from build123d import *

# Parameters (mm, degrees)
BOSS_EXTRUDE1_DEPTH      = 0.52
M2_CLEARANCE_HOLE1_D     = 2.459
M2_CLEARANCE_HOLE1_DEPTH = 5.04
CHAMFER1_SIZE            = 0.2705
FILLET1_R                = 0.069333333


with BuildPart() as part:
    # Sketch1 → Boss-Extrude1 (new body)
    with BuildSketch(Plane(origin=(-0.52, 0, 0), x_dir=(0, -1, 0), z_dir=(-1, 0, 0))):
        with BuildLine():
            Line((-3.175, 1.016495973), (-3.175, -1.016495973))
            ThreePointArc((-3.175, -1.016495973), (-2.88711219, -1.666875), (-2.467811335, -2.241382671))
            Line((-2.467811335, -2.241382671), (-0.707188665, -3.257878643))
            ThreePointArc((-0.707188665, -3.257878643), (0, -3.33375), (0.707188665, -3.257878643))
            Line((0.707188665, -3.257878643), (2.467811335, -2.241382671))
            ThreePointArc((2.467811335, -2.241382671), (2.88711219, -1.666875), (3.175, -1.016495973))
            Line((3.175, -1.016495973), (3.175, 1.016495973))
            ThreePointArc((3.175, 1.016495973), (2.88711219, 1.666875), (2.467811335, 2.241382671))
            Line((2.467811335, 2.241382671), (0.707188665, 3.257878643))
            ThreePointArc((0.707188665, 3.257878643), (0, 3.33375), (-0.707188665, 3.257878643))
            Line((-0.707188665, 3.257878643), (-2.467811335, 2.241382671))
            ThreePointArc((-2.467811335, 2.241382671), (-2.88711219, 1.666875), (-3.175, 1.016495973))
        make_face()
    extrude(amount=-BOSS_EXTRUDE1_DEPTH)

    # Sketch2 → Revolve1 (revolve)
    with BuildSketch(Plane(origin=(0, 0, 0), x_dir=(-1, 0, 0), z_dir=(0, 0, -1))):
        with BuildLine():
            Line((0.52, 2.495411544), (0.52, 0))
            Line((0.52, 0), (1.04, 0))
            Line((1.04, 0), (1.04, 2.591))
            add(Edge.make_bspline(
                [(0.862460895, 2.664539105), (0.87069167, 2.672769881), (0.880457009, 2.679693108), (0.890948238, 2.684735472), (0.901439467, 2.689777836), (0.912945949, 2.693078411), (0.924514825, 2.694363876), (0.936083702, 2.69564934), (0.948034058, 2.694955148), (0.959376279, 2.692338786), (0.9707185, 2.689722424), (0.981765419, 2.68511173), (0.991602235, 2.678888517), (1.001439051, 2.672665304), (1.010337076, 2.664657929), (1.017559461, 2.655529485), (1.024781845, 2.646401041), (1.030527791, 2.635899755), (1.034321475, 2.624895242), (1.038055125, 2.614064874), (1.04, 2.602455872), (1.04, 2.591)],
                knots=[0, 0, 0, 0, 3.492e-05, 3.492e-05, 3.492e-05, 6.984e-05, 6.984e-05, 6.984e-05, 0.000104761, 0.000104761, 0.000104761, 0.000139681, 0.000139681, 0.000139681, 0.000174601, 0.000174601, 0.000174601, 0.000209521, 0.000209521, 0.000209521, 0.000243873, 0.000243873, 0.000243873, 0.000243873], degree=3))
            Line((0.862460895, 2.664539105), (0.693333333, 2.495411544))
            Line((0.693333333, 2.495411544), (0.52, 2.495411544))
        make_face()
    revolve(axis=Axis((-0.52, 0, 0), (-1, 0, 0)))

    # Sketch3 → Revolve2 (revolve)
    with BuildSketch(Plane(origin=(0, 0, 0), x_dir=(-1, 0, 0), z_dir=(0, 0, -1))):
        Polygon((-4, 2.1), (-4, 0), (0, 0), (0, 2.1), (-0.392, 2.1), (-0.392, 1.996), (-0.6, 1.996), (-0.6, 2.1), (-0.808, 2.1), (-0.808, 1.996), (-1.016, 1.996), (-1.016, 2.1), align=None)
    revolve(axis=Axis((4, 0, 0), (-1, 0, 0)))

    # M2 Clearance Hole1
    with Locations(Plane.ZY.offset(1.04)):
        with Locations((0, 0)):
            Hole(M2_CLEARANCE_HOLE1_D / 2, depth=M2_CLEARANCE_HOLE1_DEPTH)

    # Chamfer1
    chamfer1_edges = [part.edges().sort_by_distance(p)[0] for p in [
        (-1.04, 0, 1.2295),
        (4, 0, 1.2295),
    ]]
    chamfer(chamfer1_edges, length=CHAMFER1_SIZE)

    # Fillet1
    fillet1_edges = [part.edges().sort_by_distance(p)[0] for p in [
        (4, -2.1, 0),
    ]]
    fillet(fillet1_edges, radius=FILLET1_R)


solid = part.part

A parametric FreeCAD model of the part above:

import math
import FreeCAD as App
import Part
import Sketcher

V = App.Vector
Q = App.Units.Quantity


def edges_at(feature, points):
    """Names of the edges that pass closest to the given points."""
    edges = feature.Shape.Edges
    near = lambda p: min(range(len(edges)), key=lambda i: edges[i].distToShape(Part.Vertex(*p))[0])
    return sorted({f"Edge{near(p) + 1}" for p in points})


def add_polygon(sketch, points):
    """Adds a closed chain of lines whose ends are joined by coincident constraints."""
    first, n = sketch.GeometryCount, len(points)
    for a, b in zip(points, points[1:] + points[:1]):
        sketch.addGeometry(Part.LineSegment(App.Vector(*a, 0), App.Vector(*b, 0)), False)
    for i in range(n):
        sketch.addConstraint(Sketcher.Constraint("Coincident", first + i, 2, first + (i + 1) % n, 1))

doc = App.newDocument("Part")
body = doc.addObject("PartDesign::Body", "Body")

sketch1 = body.newObject("Sketcher::SketchObject", "Sketch")
sketch1.AttachmentSupport = (doc.getObject("YZ_Plane"), [""])
sketch1.MapMode = "FlatFace"
sketch1.AttachmentOffset = App.Placement(V(0, 0, -0.52), App.Rotation())
sketch1.addGeometry(Part.LineSegment(V(3.175, 1.016496, 0), V(3.175, -1.016496, 0)), False)
sketch1.addGeometry(Part.ArcOfCircle(Part.Circle(V(0, 0, 0), V(0, 0, 1), 3.33375), math.radians(-42.24721), math.radians(-17.75279)), False)
sketch1.addGeometry(Part.LineSegment(V(2.467811, -2.241383, 0), V(0.707189, -3.257879, 0)), False)
sketch1.addGeometry(Part.ArcOfCircle(Part.Circle(V(0, 0, 0), V(0, 0, 1), 3.33375), math.radians(-102.24721), math.radians(-77.75279)), False)
sketch1.addGeometry(Part.LineSegment(V(-0.707189, -3.257879, 0), V(-2.467811, -2.241383, 0)), False)
sketch1.addGeometry(Part.ArcOfCircle(Part.Circle(V(0, 0, 0), V(0, 0, 1), 3.33375), math.radians(-162.24721), math.radians(-137.75279)), False)
sketch1.addGeometry(Part.LineSegment(V(-3.175, -1.016496, 0), V(-3.175, 1.016496, 0)), False)
sketch1.addGeometry(Part.ArcOfCircle(Part.Circle(V(0, 0, 0), V(0, 0, 1), 3.33375), math.radians(137.75279), math.radians(162.24721)), False)
sketch1.addGeometry(Part.LineSegment(V(-2.467811, 2.241383, 0), V(-0.707189, 3.257879, 0)), False)
sketch1.addGeometry(Part.ArcOfCircle(Part.Circle(V(0, 0, 0), V(0, 0, 1), 3.33375), math.radians(77.75279), math.radians(102.24721)), False)
sketch1.addGeometry(Part.LineSegment(V(0.707189, 3.257879, 0), V(2.467811, 2.241383, 0)), False)
sketch1.addGeometry(Part.ArcOfCircle(Part.Circle(V(0, 0, 0), V(0, 0, 1), 3.33375), math.radians(17.75279), math.radians(42.24721)), False)
sketch1.addConstraint(Sketcher.Constraint("Coincident", 0, 2, 1, 2))
sketch1.addConstraint(Sketcher.Constraint("Coincident", 1, 1, 2, 1))
sketch1.addConstraint(Sketcher.Constraint("Coincident", 2, 2, 3, 2))
sketch1.addConstraint(Sketcher.Constraint("Coincident", 3, 1, 4, 1))
sketch1.addConstraint(Sketcher.Constraint("Coincident", 4, 2, 5, 2))
sketch1.addConstraint(Sketcher.Constraint("Coincident", 5, 1, 6, 1))
sketch1.addConstraint(Sketcher.Constraint("Coincident", 6, 2, 7, 2))
sketch1.addConstraint(Sketcher.Constraint("Coincident", 7, 1, 8, 1))
sketch1.addConstraint(Sketcher.Constraint("Coincident", 8, 2, 9, 2))
sketch1.addConstraint(Sketcher.Constraint("Coincident", 9, 1, 10, 1))
sketch1.addConstraint(Sketcher.Constraint("Coincident", 10, 2, 11, 2))
sketch1.addConstraint(Sketcher.Constraint("Coincident", 11, 1, 0, 1))
sketch1.addConstraint(Sketcher.Constraint("Vertical", 0))
sketch1.addConstraint(Sketcher.Constraint("Vertical", 6))
sketch1.addConstraint(Sketcher.Constraint("Coincident", 1, 3, -1, 1))
sketch1.addConstraint(Sketcher.Constraint("Coincident", 3, 3, -1, 1))
sketch1.addConstraint(Sketcher.Constraint("Coincident", 5, 3, -1, 1))
sketch1.addConstraint(Sketcher.Constraint("Coincident", 7, 3, -1, 1))
sketch1.addConstraint(Sketcher.Constraint("Coincident", 9, 3, -1, 1))
sketch1.addConstraint(Sketcher.Constraint("Coincident", 11, 3, -1, 1))
sketch1.addConstraint(Sketcher.Constraint("Equal", 1, 3))
sketch1.addConstraint(Sketcher.Constraint("Equal", 3, 5))
sketch1.addConstraint(Sketcher.Constraint("Equal", 5, 7))
sketch1.addConstraint(Sketcher.Constraint("Equal", 7, 9))
sketch1.addConstraint(Sketcher.Constraint("Equal", 9, 11))
sketch1.addConstraint(Sketcher.Constraint("Parallel", 2, 8))
sketch1.addConstraint(Sketcher.Constraint("Parallel", 4, 10))
sketch1.addConstraint(Sketcher.Constraint("Horizontal", 2, 2, 3, 1))
sketch1.addConstraint(Sketcher.Constraint("Horizontal", 1, 1, 4, 2))
sketch1.addConstraint(Sketcher.Constraint("Horizontal", 0, 2, 5, 1))
sketch1.addConstraint(Sketcher.Constraint("Horizontal", 8, 2, 9, 1))
sketch1.addConstraint(Sketcher.Constraint("Vertical", 4, 2, 7, 1))
sketch1.addConstraint(Sketcher.Constraint("Angle", 2, Q("-150 deg")))
sketch1.addConstraint(Sketcher.Constraint("Radius", 1, 3.33375))
sketch1.addConstraint(Sketcher.Constraint("DistanceX", -1, 1, 0, 2, 3.175))
sketch1.addConstraint(Sketcher.Constraint("DistanceX", 3, 1, 1, 1, 3.175))
pad1 = body.newObject("PartDesign::Pad", "Pad")
pad1.Profile = sketch1
pad1.Length = 0.52

sketch2 = body.newObject("Sketcher::SketchObject", "Sketch001")
sketch2.AttachmentSupport = (doc.getObject("XY_Plane"), [""])
sketch2.MapMode = "FlatFace"
sketch2.addGeometry(Part.LineSegment(V(-0.52, 2.495412, 0), V(-0.52, 0, 0)), False)
sketch2.addGeometry(Part.LineSegment(V(-0.52, 0, 0), V(-1.04, 0, 0)), False)
sketch2.addGeometry(Part.LineSegment(V(-1.04, 0, 0), V(-1.04, 2.591, 0)), False)
sketch2.addGeometry(Part.BSplineCurve([V(-0.862461, 2.664539, 0), V(-0.870692, 2.67277, 0), V(-0.880457, 2.679693, 0), V(-0.890948, 2.684735, 0), V(-0.901439, 2.689778, 0), V(-0.912946, 2.693078, 0), V(-0.924515, 2.694364, 0), V(-0.936084, 2.695649, 0), V(-0.948034, 2.694955, 0), V(-0.959376, 2.692339, 0), V(-0.970719, 2.689722, 0), V(-0.981765, 2.685112, 0), V(-0.991602, 2.678889, 0), V(-1.001439, 2.672665, 0), V(-1.010337, 2.664658, 0), V(-1.017559, 2.655529, 0), V(-1.024782, 2.646401, 0), V(-1.030528, 2.6359, 0), V(-1.034321, 2.624895, 0), V(-1.038055, 2.614065, 0), V(-1.04, 2.602456, 0), V(-1.04, 2.591, 0)], [4, 3, 3, 3, 3, 3, 3, 4], [0, 0.00003492, 0.00006984, 0.000104761, 0.000139681, 0.000174601, 0.000209521, 0.000243873], False, 3, [1, 1, 1, 1, 1, 1, 1, 1, 1, 1, 1, 1, 1, 1, 1, 1, 1, 1, 1, 1, 1, 1], False), False)
sketch2.addGeometry(Part.LineSegment(V(-0.862461, 2.664539, 0), V(-0.693333, 2.495412, 0)), False)
sketch2.addGeometry(Part.LineSegment(V(-0.693333, 2.495412, 0), V(-0.52, 2.495412, 0)), False)
sketch2.addConstraint(Sketcher.Constraint("Block", 3))
sketch2.addConstraint(Sketcher.Constraint("Coincident", 0, 2, 1, 1))
sketch2.addConstraint(Sketcher.Constraint("Coincident", 1, 2, 2, 1))
sketch2.addConstraint(Sketcher.Constraint("Coincident", 2, 2, 3, 2))
sketch2.addConstraint(Sketcher.Constraint("Coincident", 3, 1, 4, 1))
sketch2.addConstraint(Sketcher.Constraint("Coincident", 4, 2, 5, 1))
sketch2.addConstraint(Sketcher.Constraint("Coincident", 5, 2, 0, 1))
sketch2.addConstraint(Sketcher.Constraint("Vertical", 0))
sketch2.addConstraint(Sketcher.Constraint("Horizontal", 1))
sketch2.addConstraint(Sketcher.Constraint("Vertical", 2))
sketch2.addConstraint(Sketcher.Constraint("Horizontal", 5))
sketch2.addConstraint(Sketcher.Constraint("PointOnObject", 0, 2, -1))
sketch2.addConstraint(Sketcher.Constraint("Angle", 4, Q("-45 deg")))
sketch2.addConstraint(Sketcher.Constraint("DistanceX", 1, 2, 1, 1, 0.52))
sketch2.addConstraint(Sketcher.Constraint("DistanceY", 0, 2, 0, 1, 2.495412))
revolution = body.newObject("PartDesign::Revolution", "Revolution")
revolution.Profile = sketch2
revolution.ReferenceAxis = (sketch2, ["H_Axis"])
revolution.Angle = 360

sketch3 = body.newObject("Sketcher::SketchObject", "Sketch002")
sketch3.AttachmentSupport = (doc.getObject("XY_Plane"), [""])
sketch3.MapMode = "FlatFace"
add_polygon(sketch3, [(4, 2.1), (4, 0), (0, 0), (0, 2.1), (0.392, 2.1), (0.392, 1.996), (0.6, 1.996), (0.6, 2.1), (0.808, 2.1), (0.808, 1.996), (1.016, 1.996), (1.016, 2.1)])
sketch3.addConstraint(Sketcher.Constraint("Vertical", 0))
sketch3.addConstraint(Sketcher.Constraint("Horizontal", 1))
sketch3.addConstraint(Sketcher.Constraint("Vertical", 2))
sketch3.addConstraint(Sketcher.Constraint("Horizontal", 3))
sketch3.addConstraint(Sketcher.Constraint("Vertical", 4))
sketch3.addConstraint(Sketcher.Constraint("Horizontal", 5))
sketch3.addConstraint(Sketcher.Constraint("Vertical", 6))
sketch3.addConstraint(Sketcher.Constraint("Horizontal", 7))
sketch3.addConstraint(Sketcher.Constraint("Vertical", 8))
sketch3.addConstraint(Sketcher.Constraint("Horizontal", 9))
sketch3.addConstraint(Sketcher.Constraint("Vertical", 10))
sketch3.addConstraint(Sketcher.Constraint("Horizontal", 11))
sketch3.addConstraint(Sketcher.Constraint("Coincident", 1, 2, -1, 1))
sketch3.addConstraint(Sketcher.Constraint("Horizontal", 3, 2, 6, 2))
sketch3.addConstraint(Sketcher.Constraint("Horizontal", 5, 2, 8, 2))
sketch3.addConstraint(Sketcher.Constraint("Horizontal", 7, 2, 10, 2))
sketch3.addConstraint(Sketcher.Constraint("Equal", 5, 7))
sketch3.addConstraint(Sketcher.Constraint("Equal", 7, 9))
sketch3.addConstraint(Sketcher.Constraint("DistanceX", 1, 2, 1, 1, 4.0))
sketch3.addConstraint(Sketcher.Constraint("DistanceY", 0, 2, 0, 1, 2.1))
sketch3.addConstraint(Sketcher.Constraint("DistanceX", -1, 1, 5, 2, 0.6))
sketch3.addConstraint(Sketcher.Constraint("DistanceX", 3, 1, 3, 2, 0.392))
sketch3.addConstraint(Sketcher.Constraint("DistanceY", 4, 2, 4, 1, 0.104))
revolution2 = body.newObject("PartDesign::Revolution", "Revolution001")
revolution2.Profile = sketch3
revolution2.ReferenceAxis = (sketch3, ["H_Axis"])
revolution2.Angle = 360

sketch4 = body.newObject("Sketcher::SketchObject", "Sketch003")
sketch4.AttachmentSupport = (doc.getObject("YZ_Plane"), [""])
sketch4.MapMode = "FlatFace"
sketch4.AttachmentOffset = App.Placement(V(0, 0, -1.04), App.Rotation())
sketch4.addGeometry(Part.Circle(V(0, 0, 0), V(0, 0, 1), 1.2295), False)
sketch4.addConstraint(Sketcher.Constraint("Coincident", 0, 3, -1, 1))
sketch4.addConstraint(Sketcher.Constraint("Diameter", 0, 2.459))
doc.recompute()
hole = body.newObject("PartDesign::Hole", "Hole")
hole.Profile = sketch4
hole.ThreadType = "None"
hole.Diameter = 2.459
hole.DepthType = "Dimension"
hole.Depth = 5.04
hole.DrillPoint = "Flat"
hole.Reversed = True
doc.recompute()

chamfer = body.newObject("PartDesign::Chamfer", "Chamfer")
chamfer.Base = (hole, edges_at(hole, [(-1.04, 0, 1.23), (4, 0, 1.23)]))
chamfer.Size = 0.2705
doc.recompute()

fillet = body.newObject("PartDesign::Fillet", "Fillet")
fillet.Base = (chamfer, edges_at(chamfer, [(4, -2.1, 0)]))
fillet.Radius = 0.069333

doc.recompute()
